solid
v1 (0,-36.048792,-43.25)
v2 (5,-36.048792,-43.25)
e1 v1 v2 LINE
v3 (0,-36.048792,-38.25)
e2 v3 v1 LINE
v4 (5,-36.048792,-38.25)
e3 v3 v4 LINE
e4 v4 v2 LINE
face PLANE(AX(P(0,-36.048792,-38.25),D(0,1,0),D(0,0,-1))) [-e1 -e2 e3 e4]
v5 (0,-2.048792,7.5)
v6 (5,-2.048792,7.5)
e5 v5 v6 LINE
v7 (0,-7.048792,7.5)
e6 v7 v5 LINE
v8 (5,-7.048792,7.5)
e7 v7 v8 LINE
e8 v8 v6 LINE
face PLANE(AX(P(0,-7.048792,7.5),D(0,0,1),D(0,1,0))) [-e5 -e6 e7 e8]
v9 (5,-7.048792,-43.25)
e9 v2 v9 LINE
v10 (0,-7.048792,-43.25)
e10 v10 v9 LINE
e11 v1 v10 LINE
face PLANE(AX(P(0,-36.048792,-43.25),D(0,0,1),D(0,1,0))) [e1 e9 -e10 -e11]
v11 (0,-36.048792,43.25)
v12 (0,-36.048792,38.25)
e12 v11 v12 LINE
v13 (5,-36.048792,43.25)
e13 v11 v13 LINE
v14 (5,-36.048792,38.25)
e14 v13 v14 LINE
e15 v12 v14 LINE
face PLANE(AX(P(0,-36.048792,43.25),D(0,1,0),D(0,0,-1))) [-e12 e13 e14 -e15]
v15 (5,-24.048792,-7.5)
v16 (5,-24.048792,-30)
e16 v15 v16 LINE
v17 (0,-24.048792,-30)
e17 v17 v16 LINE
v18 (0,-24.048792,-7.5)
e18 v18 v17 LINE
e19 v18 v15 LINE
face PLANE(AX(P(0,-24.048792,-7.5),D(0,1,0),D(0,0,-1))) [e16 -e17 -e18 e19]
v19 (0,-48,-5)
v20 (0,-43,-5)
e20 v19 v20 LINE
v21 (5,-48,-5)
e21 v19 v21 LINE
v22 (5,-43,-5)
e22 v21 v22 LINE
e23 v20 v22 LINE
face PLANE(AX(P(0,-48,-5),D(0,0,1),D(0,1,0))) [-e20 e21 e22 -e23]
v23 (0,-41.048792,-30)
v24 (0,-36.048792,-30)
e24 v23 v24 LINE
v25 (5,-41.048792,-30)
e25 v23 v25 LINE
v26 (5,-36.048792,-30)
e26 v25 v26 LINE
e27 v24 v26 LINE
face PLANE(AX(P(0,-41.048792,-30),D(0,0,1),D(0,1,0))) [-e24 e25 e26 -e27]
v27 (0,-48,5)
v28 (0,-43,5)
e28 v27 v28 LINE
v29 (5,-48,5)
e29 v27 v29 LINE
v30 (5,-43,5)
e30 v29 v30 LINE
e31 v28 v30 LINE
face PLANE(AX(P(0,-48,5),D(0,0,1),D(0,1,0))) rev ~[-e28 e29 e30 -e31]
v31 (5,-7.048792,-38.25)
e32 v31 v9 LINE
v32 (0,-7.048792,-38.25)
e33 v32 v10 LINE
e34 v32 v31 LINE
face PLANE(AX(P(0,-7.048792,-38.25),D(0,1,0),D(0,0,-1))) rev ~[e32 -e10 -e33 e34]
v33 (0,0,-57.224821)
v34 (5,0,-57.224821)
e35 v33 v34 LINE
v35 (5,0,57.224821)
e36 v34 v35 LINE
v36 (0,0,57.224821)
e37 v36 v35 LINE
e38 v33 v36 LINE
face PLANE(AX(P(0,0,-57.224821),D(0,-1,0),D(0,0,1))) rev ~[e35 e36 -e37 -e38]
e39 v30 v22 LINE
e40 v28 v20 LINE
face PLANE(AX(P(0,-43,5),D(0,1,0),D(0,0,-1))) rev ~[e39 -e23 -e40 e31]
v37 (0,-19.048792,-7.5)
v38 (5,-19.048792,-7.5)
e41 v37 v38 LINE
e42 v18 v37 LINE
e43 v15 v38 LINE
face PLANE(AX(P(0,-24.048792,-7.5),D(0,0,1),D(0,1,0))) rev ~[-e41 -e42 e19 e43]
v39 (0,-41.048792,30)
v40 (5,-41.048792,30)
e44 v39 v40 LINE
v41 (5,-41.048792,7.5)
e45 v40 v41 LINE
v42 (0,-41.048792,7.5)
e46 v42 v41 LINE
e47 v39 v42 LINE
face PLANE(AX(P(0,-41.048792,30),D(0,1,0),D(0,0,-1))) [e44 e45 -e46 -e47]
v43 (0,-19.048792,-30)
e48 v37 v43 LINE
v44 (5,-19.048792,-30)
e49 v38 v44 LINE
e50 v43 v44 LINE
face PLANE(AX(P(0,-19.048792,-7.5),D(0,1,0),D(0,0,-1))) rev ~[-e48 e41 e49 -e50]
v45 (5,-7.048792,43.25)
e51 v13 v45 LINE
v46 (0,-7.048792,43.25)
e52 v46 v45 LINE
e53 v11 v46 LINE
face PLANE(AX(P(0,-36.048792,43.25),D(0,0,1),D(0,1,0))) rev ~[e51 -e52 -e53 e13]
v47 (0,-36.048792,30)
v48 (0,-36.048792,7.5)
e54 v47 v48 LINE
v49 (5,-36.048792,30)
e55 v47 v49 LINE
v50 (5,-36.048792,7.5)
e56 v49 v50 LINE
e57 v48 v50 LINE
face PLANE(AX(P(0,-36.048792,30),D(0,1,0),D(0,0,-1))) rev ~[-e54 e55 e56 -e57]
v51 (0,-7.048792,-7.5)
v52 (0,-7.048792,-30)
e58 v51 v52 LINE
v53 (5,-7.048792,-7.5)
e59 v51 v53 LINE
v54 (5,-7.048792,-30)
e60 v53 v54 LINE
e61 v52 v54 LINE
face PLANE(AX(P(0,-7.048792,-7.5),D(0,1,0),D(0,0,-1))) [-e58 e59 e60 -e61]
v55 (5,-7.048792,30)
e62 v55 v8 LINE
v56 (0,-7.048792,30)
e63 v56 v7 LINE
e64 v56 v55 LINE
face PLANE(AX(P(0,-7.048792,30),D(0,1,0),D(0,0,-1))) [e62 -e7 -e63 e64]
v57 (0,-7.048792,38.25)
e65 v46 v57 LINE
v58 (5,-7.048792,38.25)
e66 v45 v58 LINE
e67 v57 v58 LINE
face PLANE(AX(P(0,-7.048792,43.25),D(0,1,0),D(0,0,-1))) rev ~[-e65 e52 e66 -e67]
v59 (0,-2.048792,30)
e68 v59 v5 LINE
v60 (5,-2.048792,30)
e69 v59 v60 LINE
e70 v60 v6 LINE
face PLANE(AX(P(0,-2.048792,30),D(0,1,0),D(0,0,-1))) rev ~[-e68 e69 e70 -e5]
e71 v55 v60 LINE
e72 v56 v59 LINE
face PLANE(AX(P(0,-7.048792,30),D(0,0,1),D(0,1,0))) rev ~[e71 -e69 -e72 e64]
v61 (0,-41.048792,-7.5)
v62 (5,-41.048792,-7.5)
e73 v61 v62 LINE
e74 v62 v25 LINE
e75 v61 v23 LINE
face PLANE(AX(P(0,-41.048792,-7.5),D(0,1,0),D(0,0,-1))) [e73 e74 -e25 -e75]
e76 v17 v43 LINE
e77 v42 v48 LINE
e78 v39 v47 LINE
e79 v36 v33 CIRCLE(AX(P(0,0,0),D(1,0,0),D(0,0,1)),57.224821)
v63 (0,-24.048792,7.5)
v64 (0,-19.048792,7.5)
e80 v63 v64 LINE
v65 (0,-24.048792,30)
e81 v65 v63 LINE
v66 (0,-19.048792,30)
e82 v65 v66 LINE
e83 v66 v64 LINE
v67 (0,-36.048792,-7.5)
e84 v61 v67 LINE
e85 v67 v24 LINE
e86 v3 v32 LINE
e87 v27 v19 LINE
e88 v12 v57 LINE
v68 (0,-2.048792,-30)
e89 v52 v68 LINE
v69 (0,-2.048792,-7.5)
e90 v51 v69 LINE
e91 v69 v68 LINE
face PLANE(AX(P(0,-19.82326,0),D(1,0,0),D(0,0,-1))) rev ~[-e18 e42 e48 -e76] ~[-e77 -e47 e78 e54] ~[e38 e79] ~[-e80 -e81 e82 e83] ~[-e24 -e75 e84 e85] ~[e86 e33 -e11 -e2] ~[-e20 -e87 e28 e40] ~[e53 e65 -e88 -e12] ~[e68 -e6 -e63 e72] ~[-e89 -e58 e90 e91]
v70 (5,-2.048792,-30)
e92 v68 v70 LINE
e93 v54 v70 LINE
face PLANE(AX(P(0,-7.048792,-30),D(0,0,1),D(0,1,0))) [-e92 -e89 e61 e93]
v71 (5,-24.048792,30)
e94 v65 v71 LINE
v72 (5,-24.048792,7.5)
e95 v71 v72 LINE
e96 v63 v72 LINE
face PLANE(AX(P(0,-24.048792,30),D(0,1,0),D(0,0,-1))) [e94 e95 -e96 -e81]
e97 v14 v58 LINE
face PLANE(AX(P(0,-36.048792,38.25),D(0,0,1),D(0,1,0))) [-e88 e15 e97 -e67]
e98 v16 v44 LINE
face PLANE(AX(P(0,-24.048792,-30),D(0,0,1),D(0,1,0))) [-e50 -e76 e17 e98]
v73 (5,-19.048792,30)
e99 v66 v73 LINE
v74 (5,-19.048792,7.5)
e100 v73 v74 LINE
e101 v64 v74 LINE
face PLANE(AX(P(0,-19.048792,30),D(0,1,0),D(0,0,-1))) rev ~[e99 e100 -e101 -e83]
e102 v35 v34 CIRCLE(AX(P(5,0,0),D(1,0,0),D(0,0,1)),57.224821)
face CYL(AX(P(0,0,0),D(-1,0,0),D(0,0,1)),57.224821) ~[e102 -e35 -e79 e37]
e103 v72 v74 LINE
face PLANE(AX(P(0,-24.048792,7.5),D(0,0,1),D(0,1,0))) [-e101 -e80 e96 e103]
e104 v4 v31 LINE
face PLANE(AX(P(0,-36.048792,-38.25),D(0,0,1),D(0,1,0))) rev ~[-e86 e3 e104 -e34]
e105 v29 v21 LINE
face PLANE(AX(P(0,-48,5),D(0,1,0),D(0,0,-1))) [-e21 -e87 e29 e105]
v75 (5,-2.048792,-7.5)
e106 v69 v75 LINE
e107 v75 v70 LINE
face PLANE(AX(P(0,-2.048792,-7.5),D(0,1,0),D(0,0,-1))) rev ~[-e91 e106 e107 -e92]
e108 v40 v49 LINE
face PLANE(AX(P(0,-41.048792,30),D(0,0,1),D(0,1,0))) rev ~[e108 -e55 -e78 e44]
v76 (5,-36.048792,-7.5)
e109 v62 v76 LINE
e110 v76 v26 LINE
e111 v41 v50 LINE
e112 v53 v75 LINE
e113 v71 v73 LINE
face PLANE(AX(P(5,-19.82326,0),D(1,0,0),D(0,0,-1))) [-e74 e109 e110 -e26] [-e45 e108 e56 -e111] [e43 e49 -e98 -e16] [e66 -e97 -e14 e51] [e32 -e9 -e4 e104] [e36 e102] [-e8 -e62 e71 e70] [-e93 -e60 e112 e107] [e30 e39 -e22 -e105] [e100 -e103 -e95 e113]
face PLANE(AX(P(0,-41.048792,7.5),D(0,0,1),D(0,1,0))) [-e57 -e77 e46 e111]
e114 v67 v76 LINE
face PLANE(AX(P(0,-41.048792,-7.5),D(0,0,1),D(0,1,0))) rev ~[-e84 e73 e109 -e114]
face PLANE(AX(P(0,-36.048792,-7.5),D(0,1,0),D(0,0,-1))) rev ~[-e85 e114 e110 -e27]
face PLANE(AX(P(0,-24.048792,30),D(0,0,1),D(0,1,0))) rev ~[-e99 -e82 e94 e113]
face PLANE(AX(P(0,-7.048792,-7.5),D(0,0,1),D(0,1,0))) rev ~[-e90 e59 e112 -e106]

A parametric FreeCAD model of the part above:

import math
import FreeCAD as App
import Part
import Sketcher
from FreeCAD import Vector
Q = App.Units.Quantity


def add_polygon(sketch, points):
    """Adds a closed chain of lines whose ends are joined by coincident constraints."""
    first, n = sketch.GeometryCount, len(points)
    for a, b in zip(points, points[1:] + points[:1]):
        sketch.addGeometry(Part.LineSegment(App.Vector(*a, 0), App.Vector(*b, 0)), False)
    for i in range(n):
        sketch.addConstraint(Sketcher.Constraint("Coincident", first + i, 2, first + (i + 1) % n, 1))

doc = App.newDocument("Part")
body = doc.addObject("PartDesign::Body", "Body")

sketch1 = body.newObject("Sketcher::SketchObject", "Sketch")
sketch1.AttachmentSupport = (doc.getObject("YZ_Plane"), [""])
sketch1.MapMode = "FlatFace"
sketch1.addGeometry(Part.LineSegment(Vector(0, -57.224821, 0), Vector(0, 57.224821, 0)), False)
sketch1.addGeometry(Part.ArcOfCircle(Part.Circle(Vector(0, 0, 0), Vector(0, 0, 1), 57.224821), math.radians(90), math.radians(270)), False)
add_polygon(sketch1, [(-41.048792, 7.5), (-41.048792, 30), (-36.048792, 30), (-36.048792, 7.5)])
add_polygon(sketch1, [(-48, -5), (-48, 5), (-43, 5), (-43, -5)])
add_polygon(sketch1, [(-41.048792, -30), (-41.048792, -7.5), (-36.048792, -7.5), (-36.048792, -30)])
add_polygon(sketch1, [(-36.048792, 38.25), (-36.048792, 43.25), (-7.048792, 43.25), (-7.048792, 38.25)])
add_polygon(sketch1, [(-24.048792, 7.5), (-24.048792, 30), (-19.048792, 30), (-19.048792, 7.5)])
add_polygon(sketch1, [(-7.048792, 7.5), (-7.048792, 30), (-2.048792, 30), (-2.048792, 7.5)])
add_polygon(sketch1, [(-24.048792, -30), (-24.048792, -7.5), (-19.048792, -7.5), (-19.048792, -30)])
add_polygon(sketch1, [(-36.048792, -43.25), (-36.048792, -38.25), (-7.048792, -38.25), (-7.048792, -43.25)])
add_polygon(sketch1, [(-7.048792, -30), (-7.048792, -7.5), (-2.048792, -7.5), (-2.048792, -30)])
sketch1.addConstraint([
    Sketcher.Constraint("Coincident", 0, 1, 1, 2),
    Sketcher.Constraint("Coincident", 1, 1, 0, 2),
    Sketcher.Constraint("Vertical", 0),
    Sketcher.Constraint("Vertical", 2),
    Sketcher.Constraint("Horizontal", 3),
    Sketcher.Constraint("Vertical", 4),
    Sketcher.Constraint("Horizontal", 5),
    Sketcher.Constraint("Vertical", 6),
    Sketcher.Constraint("Horizontal", 7),
    Sketcher.Constraint("Vertical", 8),
    Sketcher.Constraint("Horizontal", 9),
    Sketcher.Constraint("Vertical", 10),
    Sketcher.Constraint("Horizontal", 11),
    Sketcher.Constraint("Vertical", 12),
    Sketcher.Constraint("Horizontal", 13),
    Sketcher.Constraint("Vertical", 14),
    Sketcher.Constraint("Horizontal", 15),
    Sketcher.Constraint("Vertical", 16),
    Sketcher.Constraint("Horizontal", 17),
    Sketcher.Constraint("Vertical", 18),
    Sketcher.Constraint("Horizontal", 19),
    Sketcher.Constraint("Vertical", 20),
    Sketcher.Constraint("Horizontal", 21),
    Sketcher.Constraint("Vertical", 22),
    Sketcher.Constraint("Horizontal", 23),
    Sketcher.Constraint("Vertical", 24),
    Sketcher.Constraint("Horizontal", 25),
    Sketcher.Constraint("Vertical", 26),
    Sketcher.Constraint("Horizontal", 27),
    Sketcher.Constraint("Vertical", 28),
    Sketcher.Constraint("Horizontal", 29),
    Sketcher.Constraint("Vertical", 30),
    Sketcher.Constraint("Horizontal", 31),
    Sketcher.Constraint("Vertical", 32),
    Sketcher.Constraint("Horizontal", 33),
    Sketcher.Constraint("Vertical", 34),
    Sketcher.Constraint("Horizontal", 35),
    Sketcher.Constraint("Vertical", 36),
    Sketcher.Constraint("Horizontal", 37),
    Sketcher.Constraint("Coincident", 1, 3, -1, 1),
    Sketcher.Constraint("Symmetric", 5, 2, 10, 2, -1),
    Sketcher.Constraint("Symmetric", 3, 2, 12, 2, -1),
    Sketcher.Constraint("Symmetric", 21, 2, 26, 2, -1),
    Sketcher.Constraint("Symmetric", 19, 2, 28, 2, -1),
    Sketcher.Constraint("Symmetric", 17, 2, 30, 2, -1),
    Sketcher.Constraint("Symmetric", 15, 2, 32, 2, -1),
    Sketcher.Constraint("Symmetric", 25, 2, 34, 2, -1),
    Sketcher.Constraint("Symmetric", 23, 2, 36, 2, -1),
    Sketcher.Constraint("PointOnObject", 0, 1, -2),
    Sketcher.Constraint("Horizontal", 3, 2, 18, 2),
    Sketcher.Constraint("Horizontal", 5, 2, 20, 2),
    Sketcher.Constraint("Horizontal", 19, 2, 22, 2),
    Sketcher.Constraint("Horizontal", 21, 2, 24, 2),
    Sketcher.Constraint("Vertical", 12, 2, 14, 2),
    Sketcher.Constraint("Vertical", 16, 2, 22, 2),
    Sketcher.Constraint("Equal", 5, 7),
    Sketcher.Constraint("Equal", 13, 19),
    Sketcher.Constraint("Equal", 21, 23),
    Sketcher.Constraint("Equal", 37, 14),
    Sketcher.Constraint("DistanceX", 3, 1, 3, 2, Q("5 mm")),
    Sketcher.Constraint("DistanceX", 15, 1, 15, 2, Q("29 mm")),
    Sketcher.Constraint("DistanceY", 6, 1, 6, 2, Q("10 mm")),
    Sketcher.Constraint("DistanceY", 2, 1, 2, 2, Q("22.5 mm")),
    Sketcher.Constraint("DistanceY", -1, 1, 2, 2, Q("30 mm")),
    Sketcher.Constraint("DistanceX", 6, 2, -1, 1, Q("48 mm")),
    Sketcher.Constraint("DistanceY", -1, 1, 6, 2, Q("5 mm")),
    Sketcher.Constraint("DistanceX", 3, 2, 18, 2, Q("12 mm")),
    Sketcher.Constraint("DistanceY", -1, 1, 14, 2, Q("43.25 mm")),
    Sketcher.Constraint("Radius", 1, Q("57.224821 mm")),
    Sketcher.Constraint("DistanceX", 2, 2, -1, 1, Q("41.048792 mm")),
])
pad1 = body.newObject("PartDesign::Pad", "Pad")
pad1.Profile = sketch1
pad1.Length = 5

doc.recompute()
